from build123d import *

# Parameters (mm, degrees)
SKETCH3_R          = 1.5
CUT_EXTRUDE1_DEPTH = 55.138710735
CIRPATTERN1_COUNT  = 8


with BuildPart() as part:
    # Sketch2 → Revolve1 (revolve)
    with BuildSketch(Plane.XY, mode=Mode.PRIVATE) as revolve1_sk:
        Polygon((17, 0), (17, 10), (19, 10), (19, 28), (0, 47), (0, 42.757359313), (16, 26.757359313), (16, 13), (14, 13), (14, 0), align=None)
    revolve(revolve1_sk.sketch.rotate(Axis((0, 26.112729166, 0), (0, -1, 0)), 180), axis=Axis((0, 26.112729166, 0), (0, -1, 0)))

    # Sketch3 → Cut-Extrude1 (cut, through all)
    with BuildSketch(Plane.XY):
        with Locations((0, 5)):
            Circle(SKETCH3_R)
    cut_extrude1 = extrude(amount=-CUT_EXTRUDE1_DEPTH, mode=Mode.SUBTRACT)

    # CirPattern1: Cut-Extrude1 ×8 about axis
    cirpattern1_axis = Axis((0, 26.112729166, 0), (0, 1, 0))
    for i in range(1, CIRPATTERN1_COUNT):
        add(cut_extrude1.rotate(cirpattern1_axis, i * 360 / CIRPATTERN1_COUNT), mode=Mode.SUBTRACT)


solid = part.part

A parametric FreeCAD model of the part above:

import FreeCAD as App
import Part
import Sketcher
from FreeCAD import Vector
Q = App.Units.Quantity


def add_polygon(sketch, points):
    """Adds a closed chain of lines whose ends are joined by coincident constraints."""
    first, n = sketch.GeometryCount, len(points)
    for a, b in zip(points, points[1:] + points[:1]):
        sketch.addGeometry(Part.LineSegment(App.Vector(*a, 0), App.Vector(*b, 0)), False)
    for i in range(n):
        sketch.addConstraint(Sketcher.Constraint("Coincident", first + i, 2, first + (i + 1) % n, 1))

doc = App.newDocument("Part")
params = doc.addObject("Spreadsheet::Sheet", "Params")
for row, (alias, value) in enumerate([
    ("sketch1_width", "2 mm"),
    ("sketch1_width2", "3 mm"),
    ("sketch1_height", "10 mm"),
    ("sketch1_height2", "18 mm"),
    ("sketch1_height3", "13 mm"),
    ("revolution_angle", "360 deg"),
    ("sketch2_diameter", "3 mm"),
], start=1):
    params.set(f"A{row}", alias)
    params.set(f"B{row}", "=" + value)
    params.setAlias(f"B{row}", alias)

body = doc.addObject("PartDesign::Body", "Body")

# Sketch on XY plane
sketch1 = doc.addObject("Sketcher::SketchObject", "Sketch")
body.addObject(sketch1)
sketch1.AttachmentSupport = (doc.XY_Plane, [""])
sketch1.MapMode = "FlatFace"
add_polygon(sketch1, [(17, 0), (17, 10), (19, 10), (19, 28), (0, 47), (0, 42.8), (16, 26.8), (16, 13), (14, 13), (14, 0)])  # lines 0-9
sketch1.addConstraint(Sketcher.Constraint("Vertical", 0))
sketch1.addConstraint(Sketcher.Constraint("Horizontal", 1))
sketch1.addConstraint(Sketcher.Constraint("Vertical", 2))
sketch1.addConstraint(Sketcher.Constraint("Vertical", 4))
sketch1.addConstraint(Sketcher.Constraint("Vertical", 6))
sketch1.addConstraint(Sketcher.Constraint("Horizontal", 7))
sketch1.addConstraint(Sketcher.Constraint("Vertical", 8))
sketch1.addConstraint(Sketcher.Constraint("Horizontal", 9))
sketch1.addConstraint(Sketcher.Constraint("PointOnObject", 3, 2, -2))
sketch1.addConstraint(Sketcher.Constraint("PointOnObject", 8, 2, -1))
sketch1.addConstraint(Sketcher.Constraint("Parallel", 3, 5))
sketch1.addConstraint(Sketcher.Constraint("Equal", 1, 7))
sketch1.addConstraint(Sketcher.Constraint("DistanceX", 1, 1, 1, 2, Q("2 mm")))
sketch1.addConstraint(Sketcher.Constraint("DistanceX", 9, 1, 9, 2, Q("3 mm")))
sketch1.addConstraint(Sketcher.Constraint("DistanceY", 0, 1, 0, 2, Q("10 mm")))
sketch1.addConstraint(Sketcher.Constraint("DistanceY", 2, 1, 2, 2, Q("18 mm")))
sketch1.addConstraint(Sketcher.Constraint("DistanceY", 8, 2, 8, 1, Q("13 mm")))
sketch1.addConstraint(Sketcher.Constraint("Angle", 3, Q("135 deg")))
sketch1.addConstraint(Sketcher.Constraint("DistanceX", -1, 1, 0, 2, Q("17 mm")))
sketch1.addConstraint(Sketcher.Constraint("DistanceY", 4, 2, 4, 1, Q("4.242641 mm")))
sketch1.setExpression("Constraints[22]", "Params.sketch1_width")
sketch1.setExpression("Constraints[23]", "Params.sketch1_width2")
sketch1.setExpression("Constraints[24]", "Params.sketch1_height")
sketch1.setExpression("Constraints[25]", "Params.sketch1_height2")
sketch1.setExpression("Constraints[26]", "Params.sketch1_height3")
revolution = doc.addObject("PartDesign::Revolution", "Revolution")
body.addObject(revolution)
revolution.Profile = sketch1
revolution.ReferenceAxis = (sketch1, ["V_Axis"])
revolution.setExpression("Angle", "Params.revolution_angle")

# Sketch on XY plane
sketch2 = doc.addObject("Sketcher::SketchObject", "Sketch001")
body.addObject(sketch2)
sketch2.AttachmentSupport = (doc.XY_Plane, [""])
sketch2.MapMode = "FlatFace"
sketch2.addGeometry(Part.Circle(Vector(0, 5, 0), Vector(0, 0, 1), 1.5), False)
sketch2.addConstraint(Sketcher.Constraint("PointOnObject", 0, 3, -2))
sketch2.addConstraint(Sketcher.Constraint("Diameter", 0, Q("3 mm")))
sketch2.addConstraint(Sketcher.Constraint("DistanceY", -1, 1, 0, 3, Q("5 mm")))
sketch2.setExpression("Constraints[1]", "Params.sketch2_diameter")
pocket1 = doc.addObject("PartDesign::Pocket", "Pocket")
body.addObject(pocket1)
pocket1.Profile = sketch2
pocket1.Type = "ThroughAll"
doc.recompute()

polarpattern = doc.addObject("PartDesign::PolarPattern", "PolarPattern")
body.addObject(polarpattern)
polarpattern.Originals = [pocket1]
polarpattern.Axis = (doc.Y_Axis, [""])
polarpattern.Angle = 360
polarpattern.Occurrences = 8
body.Tip = polarpattern

doc.recompute()
